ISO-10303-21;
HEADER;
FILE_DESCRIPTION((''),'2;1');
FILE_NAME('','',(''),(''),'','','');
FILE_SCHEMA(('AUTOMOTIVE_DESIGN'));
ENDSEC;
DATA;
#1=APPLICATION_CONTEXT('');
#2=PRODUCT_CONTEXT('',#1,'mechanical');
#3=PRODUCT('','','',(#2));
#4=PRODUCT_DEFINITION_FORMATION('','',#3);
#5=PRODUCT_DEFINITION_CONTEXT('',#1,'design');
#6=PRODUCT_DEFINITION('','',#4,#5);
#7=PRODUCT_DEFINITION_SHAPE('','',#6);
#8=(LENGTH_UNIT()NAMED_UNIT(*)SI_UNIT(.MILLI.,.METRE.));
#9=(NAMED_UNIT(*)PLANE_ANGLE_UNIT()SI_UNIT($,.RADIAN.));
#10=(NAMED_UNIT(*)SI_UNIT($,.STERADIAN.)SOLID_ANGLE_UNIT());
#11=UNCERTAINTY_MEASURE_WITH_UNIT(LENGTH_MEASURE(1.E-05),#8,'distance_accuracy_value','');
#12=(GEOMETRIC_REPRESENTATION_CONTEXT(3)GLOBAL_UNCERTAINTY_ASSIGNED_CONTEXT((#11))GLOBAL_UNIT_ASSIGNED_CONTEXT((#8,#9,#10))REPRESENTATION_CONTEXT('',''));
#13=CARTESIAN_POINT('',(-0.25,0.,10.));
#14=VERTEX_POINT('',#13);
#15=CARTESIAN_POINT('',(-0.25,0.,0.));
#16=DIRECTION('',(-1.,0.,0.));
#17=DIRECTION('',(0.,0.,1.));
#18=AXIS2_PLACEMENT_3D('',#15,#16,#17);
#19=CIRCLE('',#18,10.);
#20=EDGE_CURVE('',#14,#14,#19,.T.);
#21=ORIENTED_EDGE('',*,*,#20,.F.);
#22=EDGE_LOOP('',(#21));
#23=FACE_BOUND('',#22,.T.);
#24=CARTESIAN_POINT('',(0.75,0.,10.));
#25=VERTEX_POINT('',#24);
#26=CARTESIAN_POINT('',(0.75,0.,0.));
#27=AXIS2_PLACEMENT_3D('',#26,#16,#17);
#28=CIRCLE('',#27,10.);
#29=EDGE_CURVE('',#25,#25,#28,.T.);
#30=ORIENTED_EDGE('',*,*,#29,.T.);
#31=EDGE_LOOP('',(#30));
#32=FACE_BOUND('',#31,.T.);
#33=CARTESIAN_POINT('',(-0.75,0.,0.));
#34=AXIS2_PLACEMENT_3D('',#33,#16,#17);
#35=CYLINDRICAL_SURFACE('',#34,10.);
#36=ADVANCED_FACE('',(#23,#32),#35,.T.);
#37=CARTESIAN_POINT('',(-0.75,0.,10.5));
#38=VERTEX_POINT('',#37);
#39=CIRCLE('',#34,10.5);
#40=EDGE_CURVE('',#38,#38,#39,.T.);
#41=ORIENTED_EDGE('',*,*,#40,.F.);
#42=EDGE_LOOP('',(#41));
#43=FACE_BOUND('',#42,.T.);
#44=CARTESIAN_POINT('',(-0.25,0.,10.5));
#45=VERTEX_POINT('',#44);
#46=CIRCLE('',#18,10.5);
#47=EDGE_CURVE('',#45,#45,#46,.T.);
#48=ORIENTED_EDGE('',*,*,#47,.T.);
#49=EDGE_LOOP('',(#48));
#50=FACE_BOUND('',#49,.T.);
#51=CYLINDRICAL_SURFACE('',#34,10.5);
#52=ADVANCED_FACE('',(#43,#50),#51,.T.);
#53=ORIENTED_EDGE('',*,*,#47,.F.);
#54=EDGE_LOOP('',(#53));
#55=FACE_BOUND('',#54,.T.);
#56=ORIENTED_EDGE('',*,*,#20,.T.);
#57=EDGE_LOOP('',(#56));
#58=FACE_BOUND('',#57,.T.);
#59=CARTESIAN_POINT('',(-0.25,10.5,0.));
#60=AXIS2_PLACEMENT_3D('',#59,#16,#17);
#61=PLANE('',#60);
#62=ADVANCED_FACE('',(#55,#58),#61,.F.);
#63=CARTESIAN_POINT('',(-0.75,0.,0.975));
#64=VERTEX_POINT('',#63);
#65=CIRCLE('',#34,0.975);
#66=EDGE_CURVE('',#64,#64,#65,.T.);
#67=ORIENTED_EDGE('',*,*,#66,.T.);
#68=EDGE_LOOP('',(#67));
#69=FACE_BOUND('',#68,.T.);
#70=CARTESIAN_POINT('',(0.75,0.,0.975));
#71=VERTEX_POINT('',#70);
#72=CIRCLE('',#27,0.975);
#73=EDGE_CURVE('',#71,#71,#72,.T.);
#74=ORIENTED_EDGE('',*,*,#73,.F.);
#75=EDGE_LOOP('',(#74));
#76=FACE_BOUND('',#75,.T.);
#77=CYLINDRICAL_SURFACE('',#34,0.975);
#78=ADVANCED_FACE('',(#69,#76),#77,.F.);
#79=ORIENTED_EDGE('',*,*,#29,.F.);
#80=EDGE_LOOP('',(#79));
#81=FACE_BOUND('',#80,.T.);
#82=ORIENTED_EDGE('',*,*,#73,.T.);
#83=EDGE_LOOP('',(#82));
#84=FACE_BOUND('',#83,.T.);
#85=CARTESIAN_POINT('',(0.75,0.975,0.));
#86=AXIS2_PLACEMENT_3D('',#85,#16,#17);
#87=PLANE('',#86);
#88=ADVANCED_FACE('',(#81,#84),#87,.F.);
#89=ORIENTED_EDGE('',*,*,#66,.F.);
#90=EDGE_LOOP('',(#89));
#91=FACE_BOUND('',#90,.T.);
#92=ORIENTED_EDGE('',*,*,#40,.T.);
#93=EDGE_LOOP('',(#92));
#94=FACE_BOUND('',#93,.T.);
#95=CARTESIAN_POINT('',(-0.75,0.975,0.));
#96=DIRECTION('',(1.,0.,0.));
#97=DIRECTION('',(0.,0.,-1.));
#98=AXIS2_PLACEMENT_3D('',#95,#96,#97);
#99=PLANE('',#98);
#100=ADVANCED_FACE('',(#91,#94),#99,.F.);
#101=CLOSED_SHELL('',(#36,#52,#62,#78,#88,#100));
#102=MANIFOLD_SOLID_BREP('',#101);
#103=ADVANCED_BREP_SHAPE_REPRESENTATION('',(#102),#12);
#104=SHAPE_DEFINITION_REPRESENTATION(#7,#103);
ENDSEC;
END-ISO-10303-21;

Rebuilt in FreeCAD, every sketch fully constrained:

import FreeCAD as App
import Part
import Sketcher
from FreeCAD import Vector


def add_polygon(sketch, points):
    """Adds a closed chain of lines whose ends are joined by coincident constraints."""
    first, n = sketch.GeometryCount, len(points)
    for a, b in zip(points, points[1:] + points[:1]):
        sketch.addGeometry(Part.LineSegment(App.Vector(*a, 0), App.Vector(*b, 0)), False)
    for i in range(n):
        sketch.addConstraint(Sketcher.Constraint("Coincident", first + i, 2, first + (i + 1) % n, 1))

doc = App.newDocument("Part")
body = doc.addObject("PartDesign::Body", "Body")

sketch1 = doc.addObject("Sketcher::SketchObject", "Sketch")
body.addObject(sketch1)
sketch1.AttachmentSupport = (doc.XY_Plane, [""])
sketch1.MapMode = "FlatFace"
add_polygon(sketch1, [(-0.2, 10.5), (-0.8, 10.5), (-0.8, 1), (0.8, 1), (0.8, 10), (-0.2, 10)])
sketch1.addConstraint([
    Sketcher.Constraint("Horizontal", 0),
    Sketcher.Constraint("Vertical", 1),
    Sketcher.Constraint("Horizontal", 2),
    Sketcher.Constraint("Vertical", 3),
    Sketcher.Constraint("Horizontal", 4),
    Sketcher.Constraint("Vertical", 5),
    Sketcher.Constraint("Equal", 0, 5),
    Sketcher.Constraint("DistanceX", 4, 2, 4, 1, 1.0),
    Sketcher.Constraint("DistanceX", 0, 2, 0, 1, 0.5),
    Sketcher.Constraint("DistanceY", -1, 1, 3, 2, 10.0),
    Sketcher.Constraint("DistanceY", 1, 2, 1, 1, 9.525),
    Sketcher.Constraint("DistanceX", 0, 2, -1, 1, 0.75),
])
revolution = doc.addObject("PartDesign::Revolution", "Revolution")
body.addObject(revolution)
revolution.Profile = sketch1
revolution.ReferenceAxis = (sketch1, ["H_Axis"])
revolution.Angle = 360

doc.recompute()
